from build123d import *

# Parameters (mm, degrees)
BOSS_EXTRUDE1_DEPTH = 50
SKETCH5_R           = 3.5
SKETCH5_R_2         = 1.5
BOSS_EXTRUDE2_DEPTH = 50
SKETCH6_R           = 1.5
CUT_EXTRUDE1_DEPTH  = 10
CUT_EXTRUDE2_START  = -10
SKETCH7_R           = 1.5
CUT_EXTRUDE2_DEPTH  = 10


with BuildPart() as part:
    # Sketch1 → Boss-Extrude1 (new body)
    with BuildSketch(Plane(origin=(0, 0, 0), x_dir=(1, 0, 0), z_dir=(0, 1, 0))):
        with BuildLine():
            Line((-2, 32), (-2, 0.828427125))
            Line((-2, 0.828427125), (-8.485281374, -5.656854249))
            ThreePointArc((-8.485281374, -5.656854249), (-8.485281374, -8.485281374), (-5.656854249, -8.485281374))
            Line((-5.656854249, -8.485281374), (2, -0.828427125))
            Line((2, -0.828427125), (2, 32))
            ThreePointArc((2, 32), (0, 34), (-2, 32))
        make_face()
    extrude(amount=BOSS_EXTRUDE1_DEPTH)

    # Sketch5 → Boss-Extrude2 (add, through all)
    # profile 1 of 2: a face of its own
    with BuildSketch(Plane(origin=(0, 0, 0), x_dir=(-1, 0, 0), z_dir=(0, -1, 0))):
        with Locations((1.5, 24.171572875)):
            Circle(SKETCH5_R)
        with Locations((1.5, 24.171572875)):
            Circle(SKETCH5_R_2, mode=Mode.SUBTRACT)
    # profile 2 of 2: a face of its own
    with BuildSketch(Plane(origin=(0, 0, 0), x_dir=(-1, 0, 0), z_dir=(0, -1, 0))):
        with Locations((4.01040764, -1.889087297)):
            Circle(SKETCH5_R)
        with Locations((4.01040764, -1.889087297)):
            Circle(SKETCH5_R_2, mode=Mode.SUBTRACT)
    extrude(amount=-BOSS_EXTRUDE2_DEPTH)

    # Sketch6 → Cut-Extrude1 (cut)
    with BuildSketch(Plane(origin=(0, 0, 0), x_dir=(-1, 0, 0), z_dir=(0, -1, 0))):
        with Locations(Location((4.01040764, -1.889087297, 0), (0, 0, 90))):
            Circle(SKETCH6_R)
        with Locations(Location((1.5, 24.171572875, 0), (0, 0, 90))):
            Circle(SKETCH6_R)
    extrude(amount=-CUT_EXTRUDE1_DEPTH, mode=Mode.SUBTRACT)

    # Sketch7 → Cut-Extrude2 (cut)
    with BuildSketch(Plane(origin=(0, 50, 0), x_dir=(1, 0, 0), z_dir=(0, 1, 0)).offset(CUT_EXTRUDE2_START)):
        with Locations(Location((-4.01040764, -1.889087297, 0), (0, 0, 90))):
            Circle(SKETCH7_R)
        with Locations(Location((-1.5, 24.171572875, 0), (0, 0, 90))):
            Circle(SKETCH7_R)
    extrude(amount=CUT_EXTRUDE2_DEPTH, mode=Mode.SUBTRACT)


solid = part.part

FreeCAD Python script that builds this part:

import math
import FreeCAD as App
import Part
import Sketcher
from FreeCAD import Vector
Q = App.Units.Quantity

doc = App.newDocument("Part")
body = doc.addObject("PartDesign::Body", "Body")

# Sketch on XZ plane
sketch1 = doc.addObject("Sketcher::SketchObject", "Sketch")
body.addObject(sketch1)
sketch1.AttachmentSupport = (doc.XZ_Plane, [""])
sketch1.MapMode = "FlatFace"
sketch1.addGeometry(Part.LineSegment(Vector(-2, -32, 0), Vector(-2, -0.828427, 0)), False)
sketch1.addGeometry(Part.LineSegment(Vector(-2, -0.828427, 0), Vector(-8.485281, 5.656854, 0)), False)
sketch1.addGeometry(Part.ArcOfCircle(Part.Circle(Vector(-7.071068, 7.071068, 0), Vector(0, 0, 1), 2), math.radians(45), math.radians(225)), False)
sketch1.addGeometry(Part.LineSegment(Vector(-5.656854, 8.485281, 0), Vector(2, 0.828427, 0)), False)
sketch1.addGeometry(Part.LineSegment(Vector(2, 0.828427, 0), Vector(2, -32, 0)), False)
sketch1.addGeometry(Part.ArcOfCircle(Part.Circle(Vector(0, -32, 0), Vector(0, 0, 1), 2), math.radians(180), math.radians(360)), False)
sketch1.addConstraint(Sketcher.Constraint("Coincident", 0, 2, 1, 1))
sketch1.addConstraint(Sketcher.Constraint("Tangent", 1, 2, 2, 2))
sketch1.addConstraint(Sketcher.Constraint("Tangent", 2, 1, 3, 1))
sketch1.addConstraint(Sketcher.Constraint("Coincident", 3, 2, 4, 1))
sketch1.addConstraint(Sketcher.Constraint("Tangent", 4, 2, 5, 2))
sketch1.addConstraint(Sketcher.Constraint("Tangent", 5, 1, 0, 1))
sketch1.addConstraint(Sketcher.Constraint("Vertical", 0))
sketch1.addConstraint(Sketcher.Constraint("Vertical", 4))
sketch1.addConstraint(Sketcher.Constraint("Equal", 2, 5))
sketch1.addConstraint(Sketcher.Constraint("Symmetric", 0, 2, 3, 2, -1, 1))
sketch1.addConstraint(Sketcher.Constraint("Parallel", 1, 3))
sketch1.addConstraint(Sketcher.Constraint("Radius", 2, 2.0))
sketch1.addConstraint(Sketcher.Constraint("Angle", 1, Q("135 deg")))
sketch1.addConstraint(Sketcher.Constraint("DistanceY", 5, 3, -1, 1, 32.0))
sketch1.addConstraint(Sketcher.Constraint("DistanceX", 1, 2, -1, 1, 8.485281))
pad1 = doc.addObject("PartDesign::Pad", "Pad")
body.addObject(pad1)
pad1.Profile = sketch1
pad1.Length = 50
pad1.Reversed = True

# Sketch on XZ plane
sketch2 = doc.addObject("Sketcher::SketchObject", "Sketch001")
body.addObject(sketch2)
sketch2.AttachmentSupport = (doc.XZ_Plane, [""])
sketch2.MapMode = "FlatFace"
sketch2.addGeometry(Part.Circle(Vector(-1.5, -24.171573, 0), Vector(0, 0, 1), 3.5), False)
sketch2.addGeometry(Part.Circle(Vector(-1.5, -24.171573, 0), Vector(0, 0, 1), 1.5), False)
sketch2.addGeometry(Part.Circle(Vector(-4.010408, 1.889087, 0), Vector(0, 0, 1), 3.5), False)
sketch2.addGeometry(Part.Circle(Vector(-4.010408, 1.889087, 0), Vector(0, 0, 1), 1.5), False)
sketch2.addConstraint(Sketcher.Constraint("Coincident", 1, 3, 0, 3))
sketch2.addConstraint(Sketcher.Constraint("Coincident", 3, 3, 2, 3))
sketch2.addConstraint(Sketcher.Constraint("Equal", 0, 2))
sketch2.addConstraint(Sketcher.Constraint("Equal", 1, 3))
sketch2.addConstraint(Sketcher.Constraint("Diameter", 0, 7.0))
sketch2.addConstraint(Sketcher.Constraint("Diameter", 1, 3.0))
sketch2.addConstraint(Sketcher.Constraint("DistanceX", 0, 3, -1, 1, 1.5))
sketch2.addConstraint(Sketcher.Constraint("DistanceY", 0, 3, 2, 3, 26.06066))
sketch2.addConstraint(Sketcher.Constraint("DistanceY", 0, 3, -1, 1, 24.171573))
sketch2.addConstraint(Sketcher.Constraint("DistanceX", 2, 3, -1, 1, 4.010408))
pad2 = doc.addObject("PartDesign::Pad", "Pad001")
body.addObject(pad2)
pad2.Profile = sketch2
pad2.Length = 50
pad2.Reversed = True

# Sketch on XZ plane
sketch3 = doc.addObject("Sketcher::SketchObject", "Sketch002")
body.addObject(sketch3)
sketch3.AttachmentSupport = (doc.XZ_Plane, [""])
sketch3.MapMode = "FlatFace"
sketch3.addGeometry(Part.Circle(Vector(-4.010408, 1.889087, 0), Vector(0, 0, 1), 1.5), False)
sketch3.addGeometry(Part.Circle(Vector(-1.5, -24.171573, 0), Vector(0, 0, 1), 1.5), False)
sketch3.addConstraint(Sketcher.Constraint("Equal", 0, 1))
sketch3.addConstraint(Sketcher.Constraint("Diameter", 0, 3.0))
sketch3.addConstraint(Sketcher.Constraint("DistanceX", 1, 3, -1, 1, 1.5))
sketch3.addConstraint(Sketcher.Constraint("DistanceY", 1, 3, 0, 3, 26.06066))
sketch3.addConstraint(Sketcher.Constraint("DistanceX", 0, 3, -1, 1, 4.010408))
sketch3.addConstraint(Sketcher.Constraint("DistanceY", -1, 1, 0, 3, 1.889087))
pocket1 = doc.addObject("PartDesign::Pocket", "Pocket")
body.addObject(pocket1)
pocket1.Profile = sketch3
pocket1.Length = 10

# Sketch on XZ plane
sketch4 = doc.addObject("Sketcher::SketchObject", "Sketch003")
body.addObject(sketch4)
sketch4.AttachmentSupport = (doc.XZ_Plane, [""])
sketch4.MapMode = "FlatFace"
sketch4.AttachmentOffset = App.Placement(Vector(0, 0, -40), App.Rotation())
sketch4.addGeometry(Part.Circle(Vector(-4.010408, 1.889087, 0), Vector(0, 0, 1), 1.5), False)
sketch4.addGeometry(Part.Circle(Vector(-1.5, -24.171573, 0), Vector(0, 0, 1), 1.5), False)
sketch4.addConstraint(Sketcher.Constraint("Equal", 0, 1))
sketch4.addConstraint(Sketcher.Constraint("Diameter", 0, 3.0))
sketch4.addConstraint(Sketcher.Constraint("DistanceX", 1, 3, -1, 1, 1.5))
sketch4.addConstraint(Sketcher.Constraint("DistanceY", 1, 3, 0, 3, 26.06066))
sketch4.addConstraint(Sketcher.Constraint("DistanceX", 0, 3, -1, 1, 4.010408))
sketch4.addConstraint(Sketcher.Constraint("DistanceY", -1, 1, 0, 3, 1.889087))
pocket2 = doc.addObject("PartDesign::Pocket", "Pocket001")
body.addObject(pocket2)
pocket2.Profile = sketch4
pocket2.Length = 10

doc.recompute()
